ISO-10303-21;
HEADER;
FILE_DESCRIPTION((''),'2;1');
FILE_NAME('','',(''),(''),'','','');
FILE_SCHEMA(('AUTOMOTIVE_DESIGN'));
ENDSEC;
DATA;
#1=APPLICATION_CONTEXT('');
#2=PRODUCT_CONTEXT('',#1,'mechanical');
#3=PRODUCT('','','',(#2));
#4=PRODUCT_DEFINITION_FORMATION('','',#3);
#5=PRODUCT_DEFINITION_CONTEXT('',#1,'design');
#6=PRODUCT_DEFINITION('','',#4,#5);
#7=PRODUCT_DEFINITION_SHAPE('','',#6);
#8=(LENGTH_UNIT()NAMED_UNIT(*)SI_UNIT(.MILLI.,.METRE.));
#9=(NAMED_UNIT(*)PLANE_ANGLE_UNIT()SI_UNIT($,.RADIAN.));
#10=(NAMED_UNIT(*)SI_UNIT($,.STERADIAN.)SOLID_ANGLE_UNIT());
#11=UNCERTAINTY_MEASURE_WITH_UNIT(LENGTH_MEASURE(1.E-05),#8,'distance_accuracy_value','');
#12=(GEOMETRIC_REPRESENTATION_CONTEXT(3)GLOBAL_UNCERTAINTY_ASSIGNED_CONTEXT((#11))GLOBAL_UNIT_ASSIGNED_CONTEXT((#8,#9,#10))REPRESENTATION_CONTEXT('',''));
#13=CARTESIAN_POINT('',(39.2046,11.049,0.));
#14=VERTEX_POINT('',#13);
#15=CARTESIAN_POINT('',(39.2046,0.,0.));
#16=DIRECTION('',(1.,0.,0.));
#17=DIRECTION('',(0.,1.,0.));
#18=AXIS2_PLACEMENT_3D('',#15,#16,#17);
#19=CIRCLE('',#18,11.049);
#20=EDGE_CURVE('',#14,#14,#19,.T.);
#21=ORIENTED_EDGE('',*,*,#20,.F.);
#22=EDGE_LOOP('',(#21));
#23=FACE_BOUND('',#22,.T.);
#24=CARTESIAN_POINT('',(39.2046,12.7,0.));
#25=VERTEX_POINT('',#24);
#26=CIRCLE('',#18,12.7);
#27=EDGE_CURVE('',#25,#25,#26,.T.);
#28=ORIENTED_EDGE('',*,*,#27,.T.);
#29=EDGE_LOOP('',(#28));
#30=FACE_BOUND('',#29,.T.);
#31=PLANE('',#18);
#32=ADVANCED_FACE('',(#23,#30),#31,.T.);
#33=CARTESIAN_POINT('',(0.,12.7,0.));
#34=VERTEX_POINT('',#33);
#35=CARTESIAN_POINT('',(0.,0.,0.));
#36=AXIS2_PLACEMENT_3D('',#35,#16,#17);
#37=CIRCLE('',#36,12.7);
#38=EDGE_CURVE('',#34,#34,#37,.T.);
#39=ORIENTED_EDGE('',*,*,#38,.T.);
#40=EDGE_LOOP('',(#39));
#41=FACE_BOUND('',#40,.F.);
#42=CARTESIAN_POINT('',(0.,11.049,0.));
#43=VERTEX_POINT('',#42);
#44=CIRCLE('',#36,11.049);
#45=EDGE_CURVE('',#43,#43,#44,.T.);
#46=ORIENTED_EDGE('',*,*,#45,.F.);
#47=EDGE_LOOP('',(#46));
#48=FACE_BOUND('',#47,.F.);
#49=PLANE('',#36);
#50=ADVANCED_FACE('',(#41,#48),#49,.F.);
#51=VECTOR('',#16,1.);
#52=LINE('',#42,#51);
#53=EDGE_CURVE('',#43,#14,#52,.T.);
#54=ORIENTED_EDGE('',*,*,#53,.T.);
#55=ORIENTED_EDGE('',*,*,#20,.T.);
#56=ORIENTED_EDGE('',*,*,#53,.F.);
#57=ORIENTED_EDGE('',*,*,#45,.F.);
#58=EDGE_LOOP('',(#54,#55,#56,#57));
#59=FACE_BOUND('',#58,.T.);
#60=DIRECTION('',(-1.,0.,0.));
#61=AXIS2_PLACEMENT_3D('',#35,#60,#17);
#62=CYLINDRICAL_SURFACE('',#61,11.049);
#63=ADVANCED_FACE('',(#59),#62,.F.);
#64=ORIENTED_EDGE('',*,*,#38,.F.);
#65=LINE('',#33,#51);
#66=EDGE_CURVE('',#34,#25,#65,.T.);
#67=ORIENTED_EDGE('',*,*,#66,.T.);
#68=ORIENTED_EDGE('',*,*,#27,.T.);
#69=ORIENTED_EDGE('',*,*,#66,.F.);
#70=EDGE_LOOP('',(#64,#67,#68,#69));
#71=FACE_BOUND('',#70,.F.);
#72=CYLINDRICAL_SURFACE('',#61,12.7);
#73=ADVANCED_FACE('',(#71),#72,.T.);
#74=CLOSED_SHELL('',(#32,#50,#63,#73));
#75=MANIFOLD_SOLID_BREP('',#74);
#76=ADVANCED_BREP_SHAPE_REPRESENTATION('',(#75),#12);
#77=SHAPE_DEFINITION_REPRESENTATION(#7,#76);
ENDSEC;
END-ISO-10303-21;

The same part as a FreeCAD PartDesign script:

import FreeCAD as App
import Part
import Sketcher

V = App.Vector
Q = App.Units.Quantity

doc = App.newDocument("Part")
body = doc.addObject("PartDesign::Body", "Body")

# Sketch on YZ plane
sketch1 = body.newObject("Sketcher::SketchObject", "Sketch")
sketch1.AttachmentSupport = (doc.getObject("YZ_Plane"), [""])
sketch1.MapMode = "FlatFace"
sketch1.addGeometry([
    Part.Circle(V(0, 0, 0), V(0, 0, 1), 13),
    Part.Circle(V(0, 0, 0), V(0, 0, 1), 11),
], False)
sketch1.addConstraint([
    Sketcher.Constraint("Coincident", 0, 3, -1, 1),
    Sketcher.Constraint("Coincident", 1, 3, -1, 1),
    Sketcher.Constraint("Diameter", 0, Q("1 in")),
    Sketcher.Constraint("Diameter", 1, Q("0.87 in")),
])
pad1 = body.newObject("PartDesign::Pad", "Pad")
pad1.Profile = sketch1
pad1.Length = Q("1.5434882 in")

doc.recompute()
